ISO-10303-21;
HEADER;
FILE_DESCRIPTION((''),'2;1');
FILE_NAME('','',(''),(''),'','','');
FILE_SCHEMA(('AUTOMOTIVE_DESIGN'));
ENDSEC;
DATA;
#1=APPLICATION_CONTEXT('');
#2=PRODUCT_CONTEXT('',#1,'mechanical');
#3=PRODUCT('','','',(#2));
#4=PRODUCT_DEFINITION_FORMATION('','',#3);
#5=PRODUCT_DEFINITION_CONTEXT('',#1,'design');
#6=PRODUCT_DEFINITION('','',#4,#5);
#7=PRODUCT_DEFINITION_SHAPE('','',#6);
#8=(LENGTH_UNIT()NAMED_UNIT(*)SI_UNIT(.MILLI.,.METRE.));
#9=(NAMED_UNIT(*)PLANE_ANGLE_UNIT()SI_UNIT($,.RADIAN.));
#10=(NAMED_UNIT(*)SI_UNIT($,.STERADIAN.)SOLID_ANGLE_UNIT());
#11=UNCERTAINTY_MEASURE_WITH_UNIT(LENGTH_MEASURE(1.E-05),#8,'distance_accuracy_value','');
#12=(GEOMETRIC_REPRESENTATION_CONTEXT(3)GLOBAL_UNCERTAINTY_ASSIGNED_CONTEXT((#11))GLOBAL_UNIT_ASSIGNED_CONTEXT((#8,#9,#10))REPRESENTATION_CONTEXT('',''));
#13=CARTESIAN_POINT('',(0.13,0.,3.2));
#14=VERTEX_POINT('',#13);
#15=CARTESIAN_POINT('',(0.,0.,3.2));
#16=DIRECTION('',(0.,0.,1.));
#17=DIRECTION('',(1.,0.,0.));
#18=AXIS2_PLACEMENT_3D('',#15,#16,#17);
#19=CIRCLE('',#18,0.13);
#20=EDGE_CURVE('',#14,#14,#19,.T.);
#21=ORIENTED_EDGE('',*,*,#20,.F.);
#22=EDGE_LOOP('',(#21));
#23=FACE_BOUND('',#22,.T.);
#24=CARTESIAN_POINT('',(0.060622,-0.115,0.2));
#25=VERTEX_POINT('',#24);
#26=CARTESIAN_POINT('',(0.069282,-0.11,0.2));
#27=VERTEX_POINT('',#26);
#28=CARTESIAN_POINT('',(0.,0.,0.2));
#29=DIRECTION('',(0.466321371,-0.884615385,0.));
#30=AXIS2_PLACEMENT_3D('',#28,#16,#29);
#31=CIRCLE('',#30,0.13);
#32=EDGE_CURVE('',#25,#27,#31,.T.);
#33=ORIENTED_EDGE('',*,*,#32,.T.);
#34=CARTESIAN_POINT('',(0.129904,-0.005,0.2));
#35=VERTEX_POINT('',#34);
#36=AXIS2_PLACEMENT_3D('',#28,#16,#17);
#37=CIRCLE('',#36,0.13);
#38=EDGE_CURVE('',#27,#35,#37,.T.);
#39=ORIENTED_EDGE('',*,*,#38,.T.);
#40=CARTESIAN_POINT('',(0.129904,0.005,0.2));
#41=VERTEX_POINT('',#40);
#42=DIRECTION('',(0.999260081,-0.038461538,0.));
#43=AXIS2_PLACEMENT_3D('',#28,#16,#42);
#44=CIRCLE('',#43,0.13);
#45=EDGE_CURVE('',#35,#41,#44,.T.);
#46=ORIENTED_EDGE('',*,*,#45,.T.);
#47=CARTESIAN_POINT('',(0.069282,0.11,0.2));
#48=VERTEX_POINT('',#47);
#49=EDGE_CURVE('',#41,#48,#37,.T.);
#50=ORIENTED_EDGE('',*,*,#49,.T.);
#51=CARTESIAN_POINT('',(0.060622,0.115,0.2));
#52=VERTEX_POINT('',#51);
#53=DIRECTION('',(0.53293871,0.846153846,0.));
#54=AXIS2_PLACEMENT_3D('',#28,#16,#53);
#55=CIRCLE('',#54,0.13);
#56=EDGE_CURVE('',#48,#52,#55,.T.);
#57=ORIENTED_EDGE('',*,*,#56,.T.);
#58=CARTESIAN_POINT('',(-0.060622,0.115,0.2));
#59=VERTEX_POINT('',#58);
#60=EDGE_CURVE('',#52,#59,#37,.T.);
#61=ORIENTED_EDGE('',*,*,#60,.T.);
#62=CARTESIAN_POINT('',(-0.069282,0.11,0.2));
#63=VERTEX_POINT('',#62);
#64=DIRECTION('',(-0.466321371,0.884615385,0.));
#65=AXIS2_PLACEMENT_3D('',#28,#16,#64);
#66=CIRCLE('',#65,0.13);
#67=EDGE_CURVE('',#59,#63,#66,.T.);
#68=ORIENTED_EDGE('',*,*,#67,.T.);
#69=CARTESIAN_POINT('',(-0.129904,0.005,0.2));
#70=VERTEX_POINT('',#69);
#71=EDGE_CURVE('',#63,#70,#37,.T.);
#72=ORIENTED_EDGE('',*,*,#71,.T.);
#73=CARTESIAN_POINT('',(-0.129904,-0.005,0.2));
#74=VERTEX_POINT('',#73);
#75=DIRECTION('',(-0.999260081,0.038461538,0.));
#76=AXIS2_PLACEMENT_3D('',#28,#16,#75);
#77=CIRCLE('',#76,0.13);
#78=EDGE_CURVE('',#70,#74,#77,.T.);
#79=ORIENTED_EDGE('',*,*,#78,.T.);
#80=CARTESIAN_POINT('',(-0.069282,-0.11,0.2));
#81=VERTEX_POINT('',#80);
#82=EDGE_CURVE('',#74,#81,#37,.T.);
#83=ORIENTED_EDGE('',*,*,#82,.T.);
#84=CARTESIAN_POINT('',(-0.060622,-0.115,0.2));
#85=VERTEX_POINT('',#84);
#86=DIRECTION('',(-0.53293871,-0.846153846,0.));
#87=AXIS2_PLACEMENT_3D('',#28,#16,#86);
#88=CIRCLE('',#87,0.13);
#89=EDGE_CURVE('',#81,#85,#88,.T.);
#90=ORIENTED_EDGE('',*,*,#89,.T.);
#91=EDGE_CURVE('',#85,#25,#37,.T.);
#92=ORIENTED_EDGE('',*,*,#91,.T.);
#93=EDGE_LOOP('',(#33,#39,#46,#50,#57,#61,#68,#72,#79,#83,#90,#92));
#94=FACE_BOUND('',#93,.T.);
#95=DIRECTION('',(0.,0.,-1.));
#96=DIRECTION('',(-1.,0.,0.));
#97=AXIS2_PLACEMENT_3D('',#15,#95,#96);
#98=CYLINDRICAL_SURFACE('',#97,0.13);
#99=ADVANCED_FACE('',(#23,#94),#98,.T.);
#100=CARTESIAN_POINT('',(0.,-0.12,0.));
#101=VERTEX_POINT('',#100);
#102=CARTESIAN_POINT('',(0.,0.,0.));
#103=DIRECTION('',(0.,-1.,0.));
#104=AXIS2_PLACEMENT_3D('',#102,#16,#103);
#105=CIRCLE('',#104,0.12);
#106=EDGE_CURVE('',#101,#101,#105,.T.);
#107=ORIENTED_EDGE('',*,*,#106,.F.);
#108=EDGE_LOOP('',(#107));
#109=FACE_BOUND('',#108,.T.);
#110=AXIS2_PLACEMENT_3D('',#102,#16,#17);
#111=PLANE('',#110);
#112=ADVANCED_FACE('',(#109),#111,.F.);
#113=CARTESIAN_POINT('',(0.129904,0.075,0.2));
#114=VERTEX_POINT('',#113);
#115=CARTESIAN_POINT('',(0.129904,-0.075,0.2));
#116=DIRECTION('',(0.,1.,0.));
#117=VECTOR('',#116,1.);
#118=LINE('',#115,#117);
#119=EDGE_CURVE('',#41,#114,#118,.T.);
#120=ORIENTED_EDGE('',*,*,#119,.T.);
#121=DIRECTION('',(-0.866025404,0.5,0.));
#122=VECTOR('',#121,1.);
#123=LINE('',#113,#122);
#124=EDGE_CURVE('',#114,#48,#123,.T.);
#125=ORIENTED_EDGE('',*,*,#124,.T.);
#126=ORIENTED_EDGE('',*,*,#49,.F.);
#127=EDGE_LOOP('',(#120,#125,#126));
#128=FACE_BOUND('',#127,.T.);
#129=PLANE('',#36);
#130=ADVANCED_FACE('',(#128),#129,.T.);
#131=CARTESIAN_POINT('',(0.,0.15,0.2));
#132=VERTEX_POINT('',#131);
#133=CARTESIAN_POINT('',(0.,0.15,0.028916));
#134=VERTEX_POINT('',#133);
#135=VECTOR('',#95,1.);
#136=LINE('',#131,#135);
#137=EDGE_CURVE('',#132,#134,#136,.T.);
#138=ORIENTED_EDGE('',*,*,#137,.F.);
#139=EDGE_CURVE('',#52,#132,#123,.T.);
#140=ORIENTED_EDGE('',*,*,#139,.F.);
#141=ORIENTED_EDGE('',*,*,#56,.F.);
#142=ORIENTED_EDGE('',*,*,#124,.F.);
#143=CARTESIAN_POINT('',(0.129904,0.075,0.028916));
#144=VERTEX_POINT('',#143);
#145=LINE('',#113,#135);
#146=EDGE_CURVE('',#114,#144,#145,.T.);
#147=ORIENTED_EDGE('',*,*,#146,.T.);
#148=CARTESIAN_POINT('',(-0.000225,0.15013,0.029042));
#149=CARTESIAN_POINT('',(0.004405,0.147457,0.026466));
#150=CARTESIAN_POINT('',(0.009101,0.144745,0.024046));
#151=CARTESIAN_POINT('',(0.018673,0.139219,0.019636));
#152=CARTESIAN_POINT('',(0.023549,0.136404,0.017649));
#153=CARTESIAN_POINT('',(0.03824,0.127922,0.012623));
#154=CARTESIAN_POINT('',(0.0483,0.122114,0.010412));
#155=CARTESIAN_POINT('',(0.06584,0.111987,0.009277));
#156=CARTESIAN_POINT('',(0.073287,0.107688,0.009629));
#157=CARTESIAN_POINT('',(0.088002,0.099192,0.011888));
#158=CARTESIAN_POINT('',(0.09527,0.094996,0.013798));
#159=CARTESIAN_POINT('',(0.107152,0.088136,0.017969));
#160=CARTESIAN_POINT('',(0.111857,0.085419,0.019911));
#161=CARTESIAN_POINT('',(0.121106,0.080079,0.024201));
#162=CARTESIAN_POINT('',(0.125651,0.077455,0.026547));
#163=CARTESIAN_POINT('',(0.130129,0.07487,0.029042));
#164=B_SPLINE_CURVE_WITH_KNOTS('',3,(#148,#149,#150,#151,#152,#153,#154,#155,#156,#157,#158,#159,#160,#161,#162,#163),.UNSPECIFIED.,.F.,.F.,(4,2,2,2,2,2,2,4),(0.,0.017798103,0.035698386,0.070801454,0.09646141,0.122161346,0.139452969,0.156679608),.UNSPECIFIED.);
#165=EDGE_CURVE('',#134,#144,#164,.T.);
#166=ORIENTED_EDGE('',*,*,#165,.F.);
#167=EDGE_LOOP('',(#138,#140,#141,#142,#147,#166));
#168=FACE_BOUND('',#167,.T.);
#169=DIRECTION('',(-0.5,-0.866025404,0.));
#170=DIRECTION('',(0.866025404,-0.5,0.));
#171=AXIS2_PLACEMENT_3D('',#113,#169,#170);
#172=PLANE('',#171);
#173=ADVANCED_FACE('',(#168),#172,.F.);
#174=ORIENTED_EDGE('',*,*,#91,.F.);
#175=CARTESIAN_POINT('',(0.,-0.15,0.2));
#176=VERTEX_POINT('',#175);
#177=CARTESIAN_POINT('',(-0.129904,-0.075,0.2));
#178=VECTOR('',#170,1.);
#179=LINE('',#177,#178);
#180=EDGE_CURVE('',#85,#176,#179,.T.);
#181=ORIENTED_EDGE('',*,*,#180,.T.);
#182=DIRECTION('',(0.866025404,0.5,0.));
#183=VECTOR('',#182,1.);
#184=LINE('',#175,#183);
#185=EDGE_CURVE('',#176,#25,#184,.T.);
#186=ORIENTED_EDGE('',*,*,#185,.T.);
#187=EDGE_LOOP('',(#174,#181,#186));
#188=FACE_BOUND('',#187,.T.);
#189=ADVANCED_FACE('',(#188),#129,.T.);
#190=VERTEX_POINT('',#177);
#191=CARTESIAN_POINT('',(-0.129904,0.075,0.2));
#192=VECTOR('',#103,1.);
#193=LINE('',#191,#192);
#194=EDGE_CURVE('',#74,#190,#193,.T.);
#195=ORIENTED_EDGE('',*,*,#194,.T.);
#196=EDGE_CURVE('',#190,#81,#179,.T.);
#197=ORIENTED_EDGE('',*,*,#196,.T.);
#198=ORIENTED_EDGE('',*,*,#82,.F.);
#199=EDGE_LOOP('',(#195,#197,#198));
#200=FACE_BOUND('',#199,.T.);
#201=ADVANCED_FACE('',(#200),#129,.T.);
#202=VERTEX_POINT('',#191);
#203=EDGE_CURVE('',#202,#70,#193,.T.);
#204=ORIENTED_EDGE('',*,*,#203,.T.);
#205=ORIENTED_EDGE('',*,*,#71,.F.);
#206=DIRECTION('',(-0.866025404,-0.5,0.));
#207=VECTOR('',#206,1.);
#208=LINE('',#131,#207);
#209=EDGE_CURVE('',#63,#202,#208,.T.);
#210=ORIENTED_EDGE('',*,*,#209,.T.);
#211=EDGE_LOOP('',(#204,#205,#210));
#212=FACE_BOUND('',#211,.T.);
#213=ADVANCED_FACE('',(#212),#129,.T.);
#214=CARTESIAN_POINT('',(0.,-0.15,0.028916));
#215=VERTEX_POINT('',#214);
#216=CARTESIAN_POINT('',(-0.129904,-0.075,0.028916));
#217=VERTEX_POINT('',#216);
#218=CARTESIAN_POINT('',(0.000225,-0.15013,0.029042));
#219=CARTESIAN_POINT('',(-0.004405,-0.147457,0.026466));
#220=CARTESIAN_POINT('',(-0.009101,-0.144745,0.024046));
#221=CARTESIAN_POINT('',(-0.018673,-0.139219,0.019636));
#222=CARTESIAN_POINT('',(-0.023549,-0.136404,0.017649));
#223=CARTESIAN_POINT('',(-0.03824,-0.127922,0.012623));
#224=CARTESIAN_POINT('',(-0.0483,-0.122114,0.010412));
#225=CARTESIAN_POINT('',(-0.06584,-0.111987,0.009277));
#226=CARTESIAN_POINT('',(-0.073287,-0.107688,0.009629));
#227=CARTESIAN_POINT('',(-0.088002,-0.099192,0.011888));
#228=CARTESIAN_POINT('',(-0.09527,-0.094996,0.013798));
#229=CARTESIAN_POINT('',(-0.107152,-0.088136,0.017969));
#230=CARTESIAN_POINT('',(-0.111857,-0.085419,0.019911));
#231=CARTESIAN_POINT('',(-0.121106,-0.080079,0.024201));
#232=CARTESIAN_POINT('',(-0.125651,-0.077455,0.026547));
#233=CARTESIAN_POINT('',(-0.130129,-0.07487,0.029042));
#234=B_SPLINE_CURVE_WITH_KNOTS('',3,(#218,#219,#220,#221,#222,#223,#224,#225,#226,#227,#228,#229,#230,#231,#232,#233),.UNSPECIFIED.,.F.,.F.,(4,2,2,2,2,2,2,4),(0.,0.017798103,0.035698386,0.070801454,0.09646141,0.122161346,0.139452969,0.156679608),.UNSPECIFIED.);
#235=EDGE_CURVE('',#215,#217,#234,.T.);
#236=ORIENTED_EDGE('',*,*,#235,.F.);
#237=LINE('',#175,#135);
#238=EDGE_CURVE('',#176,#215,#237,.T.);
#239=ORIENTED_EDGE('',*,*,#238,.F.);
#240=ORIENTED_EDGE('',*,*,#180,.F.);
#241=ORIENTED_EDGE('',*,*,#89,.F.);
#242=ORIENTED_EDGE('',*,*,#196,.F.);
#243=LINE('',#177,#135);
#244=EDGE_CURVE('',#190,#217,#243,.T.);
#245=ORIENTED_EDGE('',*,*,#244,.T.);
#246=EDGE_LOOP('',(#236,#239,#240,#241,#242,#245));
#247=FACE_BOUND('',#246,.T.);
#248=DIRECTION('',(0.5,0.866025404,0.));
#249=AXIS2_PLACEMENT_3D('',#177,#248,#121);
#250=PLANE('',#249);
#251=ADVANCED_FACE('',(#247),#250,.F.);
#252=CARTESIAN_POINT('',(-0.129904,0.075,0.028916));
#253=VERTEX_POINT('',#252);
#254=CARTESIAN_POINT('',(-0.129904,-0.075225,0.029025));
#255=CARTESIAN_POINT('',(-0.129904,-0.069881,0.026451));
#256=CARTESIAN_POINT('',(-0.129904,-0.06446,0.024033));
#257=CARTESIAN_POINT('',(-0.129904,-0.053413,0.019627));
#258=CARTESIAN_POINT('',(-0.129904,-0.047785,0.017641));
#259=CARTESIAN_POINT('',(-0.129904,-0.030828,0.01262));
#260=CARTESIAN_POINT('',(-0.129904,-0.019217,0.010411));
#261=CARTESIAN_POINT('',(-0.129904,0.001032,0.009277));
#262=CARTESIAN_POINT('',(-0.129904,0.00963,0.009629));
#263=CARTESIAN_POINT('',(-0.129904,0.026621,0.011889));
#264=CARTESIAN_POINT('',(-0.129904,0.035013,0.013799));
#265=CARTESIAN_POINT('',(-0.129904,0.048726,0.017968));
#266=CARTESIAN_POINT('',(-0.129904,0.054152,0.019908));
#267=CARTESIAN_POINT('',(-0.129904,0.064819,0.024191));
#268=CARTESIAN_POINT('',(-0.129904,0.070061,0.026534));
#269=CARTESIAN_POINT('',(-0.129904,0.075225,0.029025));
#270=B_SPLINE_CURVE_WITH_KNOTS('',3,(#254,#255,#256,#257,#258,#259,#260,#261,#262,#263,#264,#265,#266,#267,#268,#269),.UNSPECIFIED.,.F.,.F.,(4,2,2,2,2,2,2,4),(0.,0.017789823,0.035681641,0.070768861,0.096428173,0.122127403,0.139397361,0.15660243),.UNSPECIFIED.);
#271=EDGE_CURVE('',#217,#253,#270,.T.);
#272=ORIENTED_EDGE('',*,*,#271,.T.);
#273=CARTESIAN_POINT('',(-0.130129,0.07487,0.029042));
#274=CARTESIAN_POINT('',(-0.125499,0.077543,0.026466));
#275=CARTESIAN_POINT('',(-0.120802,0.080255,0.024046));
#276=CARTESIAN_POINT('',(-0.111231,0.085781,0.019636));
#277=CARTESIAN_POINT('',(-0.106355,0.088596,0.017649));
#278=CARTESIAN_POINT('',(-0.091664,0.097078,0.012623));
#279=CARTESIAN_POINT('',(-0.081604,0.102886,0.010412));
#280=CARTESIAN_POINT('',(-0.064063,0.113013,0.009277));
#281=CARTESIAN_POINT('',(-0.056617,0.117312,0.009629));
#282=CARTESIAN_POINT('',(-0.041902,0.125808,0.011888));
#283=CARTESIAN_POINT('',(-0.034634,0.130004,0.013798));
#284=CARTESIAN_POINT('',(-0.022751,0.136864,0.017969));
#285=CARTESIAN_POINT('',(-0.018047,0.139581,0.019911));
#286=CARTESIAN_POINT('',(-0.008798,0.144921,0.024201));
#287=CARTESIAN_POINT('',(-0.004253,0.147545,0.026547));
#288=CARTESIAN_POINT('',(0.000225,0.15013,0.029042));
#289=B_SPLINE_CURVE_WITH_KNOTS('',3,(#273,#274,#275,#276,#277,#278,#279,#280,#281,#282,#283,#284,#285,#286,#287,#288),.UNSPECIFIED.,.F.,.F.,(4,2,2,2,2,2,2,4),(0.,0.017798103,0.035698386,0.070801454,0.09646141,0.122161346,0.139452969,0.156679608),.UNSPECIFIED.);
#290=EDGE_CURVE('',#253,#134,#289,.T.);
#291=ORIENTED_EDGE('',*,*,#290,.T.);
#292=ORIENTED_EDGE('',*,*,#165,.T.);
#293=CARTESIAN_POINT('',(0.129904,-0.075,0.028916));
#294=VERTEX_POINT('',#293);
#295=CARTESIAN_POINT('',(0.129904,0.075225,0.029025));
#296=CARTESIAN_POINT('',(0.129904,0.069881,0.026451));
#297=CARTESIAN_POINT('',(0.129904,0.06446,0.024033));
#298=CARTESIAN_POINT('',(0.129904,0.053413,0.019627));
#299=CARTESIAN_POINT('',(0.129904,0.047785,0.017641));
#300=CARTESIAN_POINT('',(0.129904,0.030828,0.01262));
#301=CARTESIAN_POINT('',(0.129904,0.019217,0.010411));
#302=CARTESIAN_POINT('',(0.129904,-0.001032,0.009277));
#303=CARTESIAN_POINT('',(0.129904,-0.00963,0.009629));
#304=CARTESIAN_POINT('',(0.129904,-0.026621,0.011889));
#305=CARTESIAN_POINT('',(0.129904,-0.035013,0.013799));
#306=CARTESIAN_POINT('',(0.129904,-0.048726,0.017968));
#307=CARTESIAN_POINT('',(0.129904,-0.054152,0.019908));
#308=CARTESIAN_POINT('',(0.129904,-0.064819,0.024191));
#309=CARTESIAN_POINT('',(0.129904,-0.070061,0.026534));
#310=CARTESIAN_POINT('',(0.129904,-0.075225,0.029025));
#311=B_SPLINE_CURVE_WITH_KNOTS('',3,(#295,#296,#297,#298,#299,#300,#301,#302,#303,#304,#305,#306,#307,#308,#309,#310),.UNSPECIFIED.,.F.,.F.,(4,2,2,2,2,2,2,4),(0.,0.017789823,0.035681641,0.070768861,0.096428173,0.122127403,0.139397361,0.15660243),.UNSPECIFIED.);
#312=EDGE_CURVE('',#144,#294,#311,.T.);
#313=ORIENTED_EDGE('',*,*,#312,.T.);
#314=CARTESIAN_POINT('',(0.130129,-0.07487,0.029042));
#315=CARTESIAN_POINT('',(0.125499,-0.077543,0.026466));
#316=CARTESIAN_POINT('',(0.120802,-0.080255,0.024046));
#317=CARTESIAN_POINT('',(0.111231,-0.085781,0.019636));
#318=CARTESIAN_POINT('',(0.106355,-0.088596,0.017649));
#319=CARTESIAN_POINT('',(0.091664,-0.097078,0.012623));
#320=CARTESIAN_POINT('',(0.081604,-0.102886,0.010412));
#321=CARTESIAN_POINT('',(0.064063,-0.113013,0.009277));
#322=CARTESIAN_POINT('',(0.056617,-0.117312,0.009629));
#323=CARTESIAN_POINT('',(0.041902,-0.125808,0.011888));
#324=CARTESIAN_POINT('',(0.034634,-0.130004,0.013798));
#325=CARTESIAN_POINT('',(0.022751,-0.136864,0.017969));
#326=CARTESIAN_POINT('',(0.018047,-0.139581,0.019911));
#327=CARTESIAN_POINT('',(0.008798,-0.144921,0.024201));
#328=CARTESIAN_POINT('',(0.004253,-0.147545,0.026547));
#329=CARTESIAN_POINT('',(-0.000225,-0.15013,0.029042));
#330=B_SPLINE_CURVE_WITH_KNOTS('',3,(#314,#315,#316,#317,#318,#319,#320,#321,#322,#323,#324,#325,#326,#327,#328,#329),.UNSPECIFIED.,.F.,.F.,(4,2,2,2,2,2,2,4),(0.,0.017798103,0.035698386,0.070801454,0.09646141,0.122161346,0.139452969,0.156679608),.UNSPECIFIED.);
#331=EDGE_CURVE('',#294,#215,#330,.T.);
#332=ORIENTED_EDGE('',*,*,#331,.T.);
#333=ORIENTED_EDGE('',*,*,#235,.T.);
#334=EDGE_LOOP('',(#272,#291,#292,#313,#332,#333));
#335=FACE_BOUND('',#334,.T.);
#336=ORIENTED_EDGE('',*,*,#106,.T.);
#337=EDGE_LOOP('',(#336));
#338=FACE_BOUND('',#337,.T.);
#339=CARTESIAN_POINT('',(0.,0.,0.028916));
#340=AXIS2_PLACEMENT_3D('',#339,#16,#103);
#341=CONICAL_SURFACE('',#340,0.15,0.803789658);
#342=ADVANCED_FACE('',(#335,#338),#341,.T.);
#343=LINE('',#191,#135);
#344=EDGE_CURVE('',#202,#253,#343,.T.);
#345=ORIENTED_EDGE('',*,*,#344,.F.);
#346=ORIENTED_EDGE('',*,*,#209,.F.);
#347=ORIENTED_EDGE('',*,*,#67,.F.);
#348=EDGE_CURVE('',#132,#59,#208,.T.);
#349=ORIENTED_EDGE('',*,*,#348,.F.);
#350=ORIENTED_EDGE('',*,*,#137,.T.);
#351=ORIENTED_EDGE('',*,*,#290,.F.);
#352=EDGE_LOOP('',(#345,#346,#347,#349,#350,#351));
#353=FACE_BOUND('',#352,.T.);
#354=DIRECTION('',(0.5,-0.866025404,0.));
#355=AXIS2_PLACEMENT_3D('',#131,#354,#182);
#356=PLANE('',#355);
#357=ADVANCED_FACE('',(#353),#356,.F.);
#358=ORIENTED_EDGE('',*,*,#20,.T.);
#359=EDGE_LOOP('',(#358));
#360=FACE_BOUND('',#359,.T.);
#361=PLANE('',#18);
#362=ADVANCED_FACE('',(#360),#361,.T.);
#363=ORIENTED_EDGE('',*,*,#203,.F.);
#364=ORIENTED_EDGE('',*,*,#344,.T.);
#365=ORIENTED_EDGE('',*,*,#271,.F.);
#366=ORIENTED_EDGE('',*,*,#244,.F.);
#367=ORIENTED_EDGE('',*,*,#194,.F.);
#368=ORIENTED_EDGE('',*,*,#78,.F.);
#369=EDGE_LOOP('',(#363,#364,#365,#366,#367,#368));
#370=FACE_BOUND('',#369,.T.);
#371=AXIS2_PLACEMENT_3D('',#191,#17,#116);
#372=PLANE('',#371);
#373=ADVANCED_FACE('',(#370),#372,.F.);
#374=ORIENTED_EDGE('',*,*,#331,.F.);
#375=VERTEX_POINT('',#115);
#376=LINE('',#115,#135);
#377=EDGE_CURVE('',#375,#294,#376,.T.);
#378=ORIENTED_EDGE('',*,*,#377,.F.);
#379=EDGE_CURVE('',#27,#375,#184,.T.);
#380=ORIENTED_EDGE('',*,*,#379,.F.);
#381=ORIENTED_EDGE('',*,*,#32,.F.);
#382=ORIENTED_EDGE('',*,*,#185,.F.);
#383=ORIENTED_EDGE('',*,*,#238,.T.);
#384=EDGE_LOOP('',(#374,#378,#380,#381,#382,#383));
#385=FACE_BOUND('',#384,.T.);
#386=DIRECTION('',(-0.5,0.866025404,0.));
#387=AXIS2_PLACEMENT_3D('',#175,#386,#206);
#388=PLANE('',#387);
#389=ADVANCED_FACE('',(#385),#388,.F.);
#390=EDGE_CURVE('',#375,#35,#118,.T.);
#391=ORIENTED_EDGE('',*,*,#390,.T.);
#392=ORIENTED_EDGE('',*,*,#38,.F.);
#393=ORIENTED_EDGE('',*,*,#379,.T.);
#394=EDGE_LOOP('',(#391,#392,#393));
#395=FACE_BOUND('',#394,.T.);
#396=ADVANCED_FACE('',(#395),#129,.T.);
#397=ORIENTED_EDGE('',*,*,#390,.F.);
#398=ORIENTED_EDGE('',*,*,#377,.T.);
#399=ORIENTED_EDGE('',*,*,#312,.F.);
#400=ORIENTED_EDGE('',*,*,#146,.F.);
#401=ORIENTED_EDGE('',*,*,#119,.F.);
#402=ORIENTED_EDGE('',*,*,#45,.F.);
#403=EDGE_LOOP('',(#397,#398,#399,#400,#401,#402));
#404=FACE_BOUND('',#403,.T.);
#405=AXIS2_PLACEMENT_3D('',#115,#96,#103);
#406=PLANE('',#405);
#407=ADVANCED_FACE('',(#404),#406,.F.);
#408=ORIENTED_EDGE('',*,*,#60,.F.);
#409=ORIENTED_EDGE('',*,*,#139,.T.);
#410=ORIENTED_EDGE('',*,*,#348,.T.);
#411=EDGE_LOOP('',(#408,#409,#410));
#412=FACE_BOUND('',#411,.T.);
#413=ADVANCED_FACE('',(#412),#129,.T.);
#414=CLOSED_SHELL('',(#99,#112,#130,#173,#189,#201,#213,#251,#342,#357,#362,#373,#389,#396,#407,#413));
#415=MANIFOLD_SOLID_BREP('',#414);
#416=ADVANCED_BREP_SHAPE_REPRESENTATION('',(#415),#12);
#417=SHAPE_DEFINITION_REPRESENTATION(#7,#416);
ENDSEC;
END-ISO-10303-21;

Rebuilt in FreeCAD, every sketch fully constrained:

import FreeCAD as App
import Part
import Sketcher

V = App.Vector
Q = App.Units.Quantity


def add_polygon(sketch, points):
    """Adds a closed chain of lines whose ends are joined by coincident constraints."""
    first, n = sketch.GeometryCount, len(points)
    for a, b in zip(points, points[1:] + points[:1]):
        sketch.addGeometry(Part.LineSegment(App.Vector(*a, 0), App.Vector(*b, 0)), False)
    for i in range(n):
        sketch.addConstraint(Sketcher.Constraint("Coincident", first + i, 2, first + (i + 1) % n, 1))

doc = App.newDocument("Part")
body = doc.addObject("PartDesign::Body", "Body")

sketch1 = body.newObject("Sketcher::SketchObject", "Sketch")
sketch1.AttachmentSupport = (doc.getObject("XY_Plane"), [""])
sketch1.MapMode = "FlatFace"
add_polygon(sketch1, [(0, 0.15), (-0.129904, 0.075), (-0.129904, -0.075), (0, -0.15), (0.129904, -0.075), (0.129904, 0.075)])
sketch1.addConstraint([
    Sketcher.Constraint("Vertical", 1),
    Sketcher.Constraint("Vertical", 4),
    Sketcher.Constraint("Symmetric", 0, 2, 3, 2, -1, 1),
    Sketcher.Constraint("Symmetric", 2, 2, 5, 2, -1, 1),
    Sketcher.Constraint("PointOnObject", 2, 2, -2),
    Sketcher.Constraint("Parallel", 2, 5),
    Sketcher.Constraint("Horizontal", 1, 2, 3, 2),
    Sketcher.Constraint("Angle", 0, Q("-150 deg")),
    Sketcher.Constraint("DistanceY", 1, 2, 1, 1, 0.15),
    Sketcher.Constraint("DistanceY", 2, 2, 5, 2, 0.3),
])
pad1 = body.newObject("PartDesign::Pad", "Pad")
pad1.Profile = sketch1
pad1.Length = 0.2

sketch2 = body.newObject("Sketcher::SketchObject", "Sketch001")
sketch2.AttachmentSupport = (doc.getObject("XY_Plane"), [""])
sketch2.MapMode = "FlatFace"
sketch2.AttachmentOffset = App.Placement(V(0, 0, 0.2), App.Rotation())
sketch2.addGeometry(Part.Circle(V(0, 0, 0), V(0, 0, 1), 0.13), False)
sketch2.addConstraint([
    Sketcher.Constraint("Coincident", 0, 3, -1, 1),
    Sketcher.Constraint("Diameter", 0, 0.26),
])
pad2 = body.newObject("PartDesign::Pad", "Pad001")
pad2.Profile = sketch2
pad2.Length = 3

sketch3 = body.newObject("Sketcher::SketchObject", "Sketch002")
sketch3.AttachmentSupport = (doc.getObject("YZ_Plane"), [""])
sketch3.MapMode = "FlatFace"
add_polygon(sketch3, [(0.15, 0), (0.15, 0.028916), (0.12, 0)])
sketch3.addConstraint([
    Sketcher.Constraint("Vertical", 0),
    Sketcher.Constraint("Horizontal", 2),
    Sketcher.Constraint("PointOnObject", 1, 2, -1),
    Sketcher.Constraint("DistanceX", 2, 1, 2, 2, 0.03),
    Sketcher.Constraint("DistanceX", -1, 1, 0, 2, 0.15),
    Sketcher.Constraint("DistanceY", 0, 1, 0, 2, 0.028916),
])
groove = body.newObject("PartDesign::Groove", "Groove")
groove.Profile = sketch3
groove.ReferenceAxis = (sketch3, ["V_Axis"])
groove.Angle = 360

doc.recompute()
